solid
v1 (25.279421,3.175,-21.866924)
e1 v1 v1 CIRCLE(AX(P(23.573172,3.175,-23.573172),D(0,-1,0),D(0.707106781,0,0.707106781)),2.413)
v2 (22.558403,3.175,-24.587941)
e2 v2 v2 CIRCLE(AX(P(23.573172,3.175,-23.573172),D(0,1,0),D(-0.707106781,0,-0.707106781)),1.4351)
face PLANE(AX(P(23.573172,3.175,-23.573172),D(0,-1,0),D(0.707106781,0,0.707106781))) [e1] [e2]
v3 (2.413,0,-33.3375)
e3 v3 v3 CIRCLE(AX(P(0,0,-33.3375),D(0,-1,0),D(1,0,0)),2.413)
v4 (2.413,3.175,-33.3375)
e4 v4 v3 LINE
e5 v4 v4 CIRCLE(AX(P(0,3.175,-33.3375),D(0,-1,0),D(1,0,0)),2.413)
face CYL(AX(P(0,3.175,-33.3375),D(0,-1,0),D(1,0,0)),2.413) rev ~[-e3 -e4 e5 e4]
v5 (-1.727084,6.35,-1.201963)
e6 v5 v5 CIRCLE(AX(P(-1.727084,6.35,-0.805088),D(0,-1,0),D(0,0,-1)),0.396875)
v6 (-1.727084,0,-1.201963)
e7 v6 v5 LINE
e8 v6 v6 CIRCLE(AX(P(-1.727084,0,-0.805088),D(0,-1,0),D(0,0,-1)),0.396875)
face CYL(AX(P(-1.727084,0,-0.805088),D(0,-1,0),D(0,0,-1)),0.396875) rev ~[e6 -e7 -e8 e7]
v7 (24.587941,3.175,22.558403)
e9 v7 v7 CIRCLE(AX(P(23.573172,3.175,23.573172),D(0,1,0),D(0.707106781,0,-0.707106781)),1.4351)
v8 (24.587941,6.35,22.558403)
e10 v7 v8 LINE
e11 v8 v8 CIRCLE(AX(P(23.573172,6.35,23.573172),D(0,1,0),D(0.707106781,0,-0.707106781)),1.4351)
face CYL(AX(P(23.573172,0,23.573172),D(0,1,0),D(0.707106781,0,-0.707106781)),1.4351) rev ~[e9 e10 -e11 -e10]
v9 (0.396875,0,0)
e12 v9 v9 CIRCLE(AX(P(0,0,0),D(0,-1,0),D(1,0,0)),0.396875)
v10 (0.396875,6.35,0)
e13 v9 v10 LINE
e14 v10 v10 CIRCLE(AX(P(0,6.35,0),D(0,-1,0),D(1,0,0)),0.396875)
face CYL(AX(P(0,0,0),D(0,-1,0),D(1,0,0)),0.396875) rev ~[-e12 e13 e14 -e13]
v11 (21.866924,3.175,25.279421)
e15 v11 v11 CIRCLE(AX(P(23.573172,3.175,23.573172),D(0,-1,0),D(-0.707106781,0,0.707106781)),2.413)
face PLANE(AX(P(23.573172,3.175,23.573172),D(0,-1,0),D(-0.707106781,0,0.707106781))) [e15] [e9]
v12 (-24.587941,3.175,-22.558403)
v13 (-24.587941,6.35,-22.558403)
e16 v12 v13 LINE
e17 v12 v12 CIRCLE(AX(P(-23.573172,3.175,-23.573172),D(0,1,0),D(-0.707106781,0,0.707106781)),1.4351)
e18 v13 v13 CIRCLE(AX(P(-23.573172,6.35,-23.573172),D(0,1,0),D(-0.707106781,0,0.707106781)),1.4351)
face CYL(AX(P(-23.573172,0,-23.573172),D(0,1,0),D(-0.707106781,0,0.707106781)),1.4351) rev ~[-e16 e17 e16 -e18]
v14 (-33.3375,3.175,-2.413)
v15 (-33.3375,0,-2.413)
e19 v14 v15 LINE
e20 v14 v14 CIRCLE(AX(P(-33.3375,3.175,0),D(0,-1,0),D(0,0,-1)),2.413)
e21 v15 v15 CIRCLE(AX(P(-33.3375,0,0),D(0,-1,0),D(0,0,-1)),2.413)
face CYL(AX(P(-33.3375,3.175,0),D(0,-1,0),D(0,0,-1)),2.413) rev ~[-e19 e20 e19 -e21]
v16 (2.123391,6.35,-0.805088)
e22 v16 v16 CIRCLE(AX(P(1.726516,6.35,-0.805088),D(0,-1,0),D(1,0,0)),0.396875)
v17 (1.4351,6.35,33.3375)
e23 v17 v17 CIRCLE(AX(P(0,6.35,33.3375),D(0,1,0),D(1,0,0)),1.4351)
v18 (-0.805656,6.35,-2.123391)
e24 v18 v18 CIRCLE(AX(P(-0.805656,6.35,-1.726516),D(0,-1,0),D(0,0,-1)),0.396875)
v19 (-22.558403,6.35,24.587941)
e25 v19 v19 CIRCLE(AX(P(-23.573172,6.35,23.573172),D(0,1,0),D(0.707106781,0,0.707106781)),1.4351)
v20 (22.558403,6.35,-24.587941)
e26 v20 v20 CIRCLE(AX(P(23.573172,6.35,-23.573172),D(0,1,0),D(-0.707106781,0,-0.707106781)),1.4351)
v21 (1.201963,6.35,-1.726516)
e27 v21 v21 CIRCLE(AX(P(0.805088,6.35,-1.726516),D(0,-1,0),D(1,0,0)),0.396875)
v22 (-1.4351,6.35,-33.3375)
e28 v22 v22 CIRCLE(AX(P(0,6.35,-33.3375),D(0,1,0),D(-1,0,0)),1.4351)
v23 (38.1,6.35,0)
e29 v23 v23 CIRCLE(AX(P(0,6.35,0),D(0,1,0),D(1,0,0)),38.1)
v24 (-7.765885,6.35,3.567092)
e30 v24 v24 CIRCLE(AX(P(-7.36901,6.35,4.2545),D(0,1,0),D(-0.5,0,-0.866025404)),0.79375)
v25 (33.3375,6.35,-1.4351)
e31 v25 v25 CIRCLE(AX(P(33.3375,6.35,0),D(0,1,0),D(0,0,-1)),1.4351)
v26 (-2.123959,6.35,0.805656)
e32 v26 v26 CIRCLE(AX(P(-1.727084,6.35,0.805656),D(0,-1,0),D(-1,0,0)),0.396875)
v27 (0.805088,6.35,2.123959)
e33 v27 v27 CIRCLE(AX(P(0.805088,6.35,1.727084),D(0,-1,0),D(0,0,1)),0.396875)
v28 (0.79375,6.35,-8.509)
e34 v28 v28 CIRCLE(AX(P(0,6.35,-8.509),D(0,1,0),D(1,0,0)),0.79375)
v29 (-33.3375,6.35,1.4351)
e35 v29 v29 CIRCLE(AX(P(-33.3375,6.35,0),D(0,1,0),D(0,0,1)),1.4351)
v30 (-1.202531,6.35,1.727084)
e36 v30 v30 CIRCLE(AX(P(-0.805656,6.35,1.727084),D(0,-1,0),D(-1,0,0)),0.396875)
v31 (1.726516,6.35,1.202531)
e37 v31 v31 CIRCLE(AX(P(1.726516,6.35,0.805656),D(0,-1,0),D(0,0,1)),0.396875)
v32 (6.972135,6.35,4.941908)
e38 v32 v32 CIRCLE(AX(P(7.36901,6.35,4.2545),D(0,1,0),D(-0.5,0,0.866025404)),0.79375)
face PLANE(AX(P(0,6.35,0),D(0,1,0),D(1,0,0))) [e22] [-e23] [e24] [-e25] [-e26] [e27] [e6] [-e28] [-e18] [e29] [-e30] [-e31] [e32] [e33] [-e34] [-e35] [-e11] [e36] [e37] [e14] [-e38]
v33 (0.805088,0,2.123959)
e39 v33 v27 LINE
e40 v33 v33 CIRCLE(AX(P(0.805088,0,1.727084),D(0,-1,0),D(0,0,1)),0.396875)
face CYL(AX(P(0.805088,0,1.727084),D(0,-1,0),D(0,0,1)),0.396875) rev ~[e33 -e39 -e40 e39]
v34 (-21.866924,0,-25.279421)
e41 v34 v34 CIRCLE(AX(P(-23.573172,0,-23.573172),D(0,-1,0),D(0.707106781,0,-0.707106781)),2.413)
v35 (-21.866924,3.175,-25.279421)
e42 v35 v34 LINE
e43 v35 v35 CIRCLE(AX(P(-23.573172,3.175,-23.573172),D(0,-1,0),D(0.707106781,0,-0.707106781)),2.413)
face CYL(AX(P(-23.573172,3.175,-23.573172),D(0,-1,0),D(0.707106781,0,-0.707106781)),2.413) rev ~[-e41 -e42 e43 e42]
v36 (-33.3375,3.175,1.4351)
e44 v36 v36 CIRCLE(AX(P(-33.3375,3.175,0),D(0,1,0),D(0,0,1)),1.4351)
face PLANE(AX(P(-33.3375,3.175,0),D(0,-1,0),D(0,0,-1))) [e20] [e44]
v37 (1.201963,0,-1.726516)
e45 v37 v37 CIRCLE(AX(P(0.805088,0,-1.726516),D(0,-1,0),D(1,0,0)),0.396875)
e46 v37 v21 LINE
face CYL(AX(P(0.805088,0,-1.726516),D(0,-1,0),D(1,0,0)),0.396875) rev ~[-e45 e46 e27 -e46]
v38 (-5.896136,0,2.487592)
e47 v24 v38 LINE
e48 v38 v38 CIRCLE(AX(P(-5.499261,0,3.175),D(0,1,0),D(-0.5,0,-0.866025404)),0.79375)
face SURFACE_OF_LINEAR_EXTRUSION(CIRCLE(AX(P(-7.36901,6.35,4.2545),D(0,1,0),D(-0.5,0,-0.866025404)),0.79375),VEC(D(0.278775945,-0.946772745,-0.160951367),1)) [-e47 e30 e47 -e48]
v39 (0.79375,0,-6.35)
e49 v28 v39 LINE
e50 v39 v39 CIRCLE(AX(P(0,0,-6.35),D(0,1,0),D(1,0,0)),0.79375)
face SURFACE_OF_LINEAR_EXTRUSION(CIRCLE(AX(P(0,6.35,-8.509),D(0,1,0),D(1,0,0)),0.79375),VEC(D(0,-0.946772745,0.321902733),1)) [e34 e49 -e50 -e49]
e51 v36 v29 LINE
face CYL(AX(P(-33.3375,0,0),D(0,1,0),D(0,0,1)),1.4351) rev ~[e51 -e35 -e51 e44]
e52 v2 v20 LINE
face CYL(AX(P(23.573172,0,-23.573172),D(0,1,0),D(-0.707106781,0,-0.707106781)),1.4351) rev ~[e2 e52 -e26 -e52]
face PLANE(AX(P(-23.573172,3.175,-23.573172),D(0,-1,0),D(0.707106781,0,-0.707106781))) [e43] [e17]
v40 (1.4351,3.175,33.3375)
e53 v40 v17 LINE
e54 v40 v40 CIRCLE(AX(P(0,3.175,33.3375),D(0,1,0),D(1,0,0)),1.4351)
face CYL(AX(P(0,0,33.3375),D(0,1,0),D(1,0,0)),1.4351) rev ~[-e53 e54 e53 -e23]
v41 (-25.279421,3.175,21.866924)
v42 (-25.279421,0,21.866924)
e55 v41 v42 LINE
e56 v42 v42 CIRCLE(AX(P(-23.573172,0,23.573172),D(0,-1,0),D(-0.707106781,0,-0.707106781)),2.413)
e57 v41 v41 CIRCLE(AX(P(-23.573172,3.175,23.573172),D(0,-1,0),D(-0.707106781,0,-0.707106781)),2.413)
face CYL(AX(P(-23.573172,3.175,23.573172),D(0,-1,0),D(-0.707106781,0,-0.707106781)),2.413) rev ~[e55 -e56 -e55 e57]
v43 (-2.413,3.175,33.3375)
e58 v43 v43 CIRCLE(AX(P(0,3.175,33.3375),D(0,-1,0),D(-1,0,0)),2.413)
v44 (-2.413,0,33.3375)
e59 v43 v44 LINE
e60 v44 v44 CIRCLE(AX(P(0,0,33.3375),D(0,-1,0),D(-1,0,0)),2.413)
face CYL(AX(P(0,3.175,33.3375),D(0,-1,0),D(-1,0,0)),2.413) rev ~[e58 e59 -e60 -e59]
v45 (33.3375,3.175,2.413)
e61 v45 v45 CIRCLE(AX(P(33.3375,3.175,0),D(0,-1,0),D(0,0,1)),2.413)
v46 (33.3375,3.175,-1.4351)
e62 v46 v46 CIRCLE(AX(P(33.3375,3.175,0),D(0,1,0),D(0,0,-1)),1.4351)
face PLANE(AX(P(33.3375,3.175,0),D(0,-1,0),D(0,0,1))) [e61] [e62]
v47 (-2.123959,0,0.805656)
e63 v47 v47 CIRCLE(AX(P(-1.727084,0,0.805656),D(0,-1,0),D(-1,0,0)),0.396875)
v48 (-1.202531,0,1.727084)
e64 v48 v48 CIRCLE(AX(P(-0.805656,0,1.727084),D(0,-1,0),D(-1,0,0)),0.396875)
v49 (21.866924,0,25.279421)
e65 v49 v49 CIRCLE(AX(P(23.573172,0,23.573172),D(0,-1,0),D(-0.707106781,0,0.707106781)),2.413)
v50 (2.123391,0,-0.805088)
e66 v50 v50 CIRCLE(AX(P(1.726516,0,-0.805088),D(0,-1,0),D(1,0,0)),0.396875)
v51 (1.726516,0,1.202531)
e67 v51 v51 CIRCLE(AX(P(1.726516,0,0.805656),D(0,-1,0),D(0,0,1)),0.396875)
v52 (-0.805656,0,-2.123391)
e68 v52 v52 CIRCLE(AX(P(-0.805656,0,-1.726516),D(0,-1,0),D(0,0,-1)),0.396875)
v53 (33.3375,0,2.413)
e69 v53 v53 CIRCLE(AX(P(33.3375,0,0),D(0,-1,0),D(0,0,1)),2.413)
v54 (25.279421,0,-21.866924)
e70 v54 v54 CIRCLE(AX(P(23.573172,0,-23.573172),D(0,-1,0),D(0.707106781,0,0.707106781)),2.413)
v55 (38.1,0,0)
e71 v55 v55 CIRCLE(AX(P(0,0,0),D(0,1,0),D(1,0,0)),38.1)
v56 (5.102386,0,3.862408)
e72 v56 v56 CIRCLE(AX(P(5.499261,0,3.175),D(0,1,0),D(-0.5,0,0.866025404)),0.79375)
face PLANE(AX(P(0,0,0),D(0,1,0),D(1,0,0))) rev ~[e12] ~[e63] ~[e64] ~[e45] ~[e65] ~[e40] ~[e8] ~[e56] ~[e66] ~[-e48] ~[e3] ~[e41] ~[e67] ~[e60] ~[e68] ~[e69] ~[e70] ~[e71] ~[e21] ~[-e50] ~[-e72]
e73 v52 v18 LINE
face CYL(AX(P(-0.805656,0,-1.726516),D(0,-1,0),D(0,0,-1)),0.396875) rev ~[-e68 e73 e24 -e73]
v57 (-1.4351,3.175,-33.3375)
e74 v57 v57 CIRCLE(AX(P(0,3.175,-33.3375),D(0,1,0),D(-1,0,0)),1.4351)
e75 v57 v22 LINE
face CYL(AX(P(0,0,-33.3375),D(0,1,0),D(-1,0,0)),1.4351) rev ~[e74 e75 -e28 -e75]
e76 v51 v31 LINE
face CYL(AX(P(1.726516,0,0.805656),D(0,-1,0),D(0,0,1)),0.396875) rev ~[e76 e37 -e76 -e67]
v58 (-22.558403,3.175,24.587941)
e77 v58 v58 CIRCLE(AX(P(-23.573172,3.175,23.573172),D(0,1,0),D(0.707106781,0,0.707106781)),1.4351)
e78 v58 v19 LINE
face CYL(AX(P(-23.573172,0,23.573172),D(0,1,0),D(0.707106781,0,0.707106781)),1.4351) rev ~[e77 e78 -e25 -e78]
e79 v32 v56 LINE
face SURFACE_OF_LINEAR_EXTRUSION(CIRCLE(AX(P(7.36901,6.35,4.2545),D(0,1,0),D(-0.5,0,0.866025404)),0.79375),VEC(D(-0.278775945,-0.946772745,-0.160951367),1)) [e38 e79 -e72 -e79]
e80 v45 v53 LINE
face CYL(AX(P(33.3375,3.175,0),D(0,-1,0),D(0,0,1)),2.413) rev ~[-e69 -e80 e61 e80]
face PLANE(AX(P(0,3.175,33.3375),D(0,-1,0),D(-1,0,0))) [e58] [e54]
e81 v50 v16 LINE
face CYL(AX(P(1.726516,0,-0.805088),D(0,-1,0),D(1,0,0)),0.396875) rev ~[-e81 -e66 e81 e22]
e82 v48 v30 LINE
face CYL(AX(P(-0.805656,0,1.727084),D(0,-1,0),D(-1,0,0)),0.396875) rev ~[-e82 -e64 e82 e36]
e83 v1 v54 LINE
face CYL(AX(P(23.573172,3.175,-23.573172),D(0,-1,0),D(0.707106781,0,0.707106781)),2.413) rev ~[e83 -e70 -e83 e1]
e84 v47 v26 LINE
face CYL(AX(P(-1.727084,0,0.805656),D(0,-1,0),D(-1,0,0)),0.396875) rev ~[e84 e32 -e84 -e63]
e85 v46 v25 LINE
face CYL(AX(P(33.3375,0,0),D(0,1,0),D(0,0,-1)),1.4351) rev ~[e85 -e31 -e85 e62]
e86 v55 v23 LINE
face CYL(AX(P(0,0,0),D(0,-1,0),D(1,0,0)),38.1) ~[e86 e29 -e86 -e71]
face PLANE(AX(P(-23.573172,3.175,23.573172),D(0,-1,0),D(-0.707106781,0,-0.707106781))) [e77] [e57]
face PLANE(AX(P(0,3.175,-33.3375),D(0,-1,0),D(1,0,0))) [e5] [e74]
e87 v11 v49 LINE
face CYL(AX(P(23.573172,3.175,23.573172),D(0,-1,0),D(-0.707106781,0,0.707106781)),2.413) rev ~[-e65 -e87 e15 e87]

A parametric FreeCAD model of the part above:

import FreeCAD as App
import Part
import Sketcher

V = App.Vector
Q = App.Units.Quantity

doc = App.newDocument("Part")
body = doc.addObject("PartDesign::Body", "Body")

# Sketch on XZ plane
sketch1 = body.newObject("Sketcher::SketchObject", "Sketch")
sketch1.AttachmentSupport = (doc.getObject("XZ_Plane"), [""])
sketch1.MapMode = "FlatFace"
sketch1.addGeometry(Part.Circle(V(0, 0, 0), V(0, 0, 1), 38), False)
sketch1.addConstraint([
    Sketcher.Constraint("Coincident", 0, 3, -1, 1),
    Sketcher.Constraint("Diameter", 0, Q("3 in")),
])
pad1 = body.newObject("PartDesign::Pad", "Pad")
pad1.Profile = sketch1
pad1.Length = Q("0.25 in")
pad1.Reversed = True

# Sketch on XZ plane
sketch2 = body.newObject("Sketcher::SketchObject", "Sketch001")
sketch2.AttachmentSupport = (doc.getObject("XZ_Plane"), [""])
sketch2.MapMode = "FlatFace"
sketch2.addGeometry(Part.Circle(V(0, 33.3, 0), V(0, 0, 1), 1.4), False)
sketch2.addConstraint([
    Sketcher.Constraint("PointOnObject", 0, 3, -2),
    Sketcher.Constraint("Diameter", 0, Q("0.113 in")),
    Sketcher.Constraint("DistanceY", -1, 1, 0, 3, Q("1.3125 in")),
])
doc.recompute()
hole = body.newObject("PartDesign::Hole", "Hole")
hole.Profile = sketch2
hole.ThreadType = "None"
hole.Diameter = Q("0.113 in")
hole.DepthType = "ThroughAll"
hole.HoleCutType = "Counterbore"
hole.HoleCutDiameter = Q("0.19 in")
hole.HoleCutDepth = Q("0.125 in")
doc.recompute()

polarpattern = body.newObject("PartDesign::PolarPattern", "PolarPattern")
polarpattern.Originals = [hole]
polarpattern.Axis = (doc.getObject("Y_Axis"), [""])
polarpattern.Angle = 360
polarpattern.Occurrences = 8
body.Tip = polarpattern

# Sketch on XZ plane
sketch3 = body.newObject("Sketcher::SketchObject", "Sketch002")
sketch3.AttachmentSupport = (doc.getObject("XZ_Plane"), [""])
sketch3.MapMode = "FlatFace"
sketch3.addGeometry([
    Part.Circle(V(0.81, -1.73, 0), V(0, 0, 1), 0.4),
    Part.Circle(V(1.73, -0.81, 0), V(0, 0, 1), 0.4),
], False)
sketch3.addConstraint([
    Sketcher.Constraint("Equal", 0, 1),
    Sketcher.Constraint("Diameter", 0, Q("0.03125 in")),
    Sketcher.Constraint("DistanceX", 0, 3, 1, 3, Q("0.921429 mm")),
    Sketcher.Constraint("DistanceY", 0, 3, 1, 3, Q("0.921429 mm")),
    Sketcher.Constraint("DistanceX", -1, 1, 0, 3, Q("0.805088 mm")),
    Sketcher.Constraint("DistanceY", 0, 3, -1, 1, Q("1.726516 mm")),
])
pocket1 = body.newObject("PartDesign::Pocket", "Pocket")
pocket1.Profile = sketch3
pocket1.Type = "ThroughAll"
doc.recompute()

datumline = body.newObject("PartDesign::Line", "DatumLine")
datumline.Placement = App.Placement(V(-0.000284, 0, 0.000284), App.Rotation(V(0, 0, 1), V(0, 1, 0)))
polarpattern2 = body.newObject("PartDesign::PolarPattern", "PolarPattern001")
polarpattern2.Originals = [pocket1]
polarpattern2.Axis = (datumline, [""])
polarpattern2.Angle = 360
polarpattern2.Occurrences = 4
body.Tip = polarpattern2

# Sketch on XZ plane
sketch4 = body.newObject("Sketcher::SketchObject", "Sketch003")
sketch4.AttachmentSupport = (doc.getObject("XZ_Plane"), [""])
sketch4.MapMode = "FlatFace"
sketch4.addGeometry(Part.Circle(V(0, 0, 0), V(0, 0, 1), 0.4), False)
sketch4.addConstraint([
    Sketcher.Constraint("Coincident", 0, 3, -1, 1),
    Sketcher.Constraint("Diameter", 0, Q("0.03125 in")),
])
pocket2 = body.newObject("PartDesign::Pocket", "Pocket001")
pocket2.Profile = sketch4
pocket2.Type = "ThroughAll"

# Sketch on XZ plane
sketch5 = body.newObject("Sketcher::SketchObject", "Sketch004")
sketch5.AttachmentSupport = (doc.getObject("XZ_Plane"), [""])
sketch5.MapMode = "FlatFace"
sketch5.AttachmentOffset = App.Placement(V(0, 0, -0.25 * 25.4), App.Rotation())
sketch5.addGeometry(Part.Circle(V(0, -8.5, 0), V(0, 0, 1), 0.8), False)
sketch5.addConstraint([
    Sketcher.Constraint("PointOnObject", 0, 3, -2),
    Sketcher.Constraint("Diameter", 0, Q("0.0625 in")),
    Sketcher.Constraint("DistanceY", 0, 3, -1, 1, Q("0.335 in")),
])

# Sketch on an angled plane
sketch6 = body.newObject("Sketcher::SketchObject", "Sketch005")
sketch6.Placement = App.Placement(V(0, -1.935281, -5.692004), App.Rotation(V(0, 0.946772745, -0.321902733), V(1, 0, 0), V(0, -0.321902733, -0.946772745), "ZXY"))
sketch6.addGeometry(Part.LineSegment(V(9, 0, 0), V(2, 0, 0)), False)
sketch6.addConstraint([
    Sketcher.Constraint("Horizontal", 0),
    Sketcher.Constraint("PointOnObject", 0, 1, -1),
    Sketcher.Constraint("DistanceX", 0, 2, 0, 1, Q("6.706995 mm")),
    Sketcher.Constraint("DistanceX", -1, 1, 0, 1, Q("8.751077 mm")),
])
doc.recompute()

subtractivepipe = body.newObject("PartDesign::SubtractivePipe", "SubtractivePipe")
subtractivepipe.Profile = sketch5
subtractivepipe.Spine = (sketch6, ["Edge1"])
doc.recompute()

polarpattern3 = body.newObject("PartDesign::PolarPattern", "PolarPattern002")
polarpattern3.Originals = [subtractivepipe]
polarpattern3.Axis = (doc.getObject("Y_Axis"), [""])
polarpattern3.Angle = 360
polarpattern3.Occurrences = 3
body.Tip = polarpattern3

doc.recompute()
